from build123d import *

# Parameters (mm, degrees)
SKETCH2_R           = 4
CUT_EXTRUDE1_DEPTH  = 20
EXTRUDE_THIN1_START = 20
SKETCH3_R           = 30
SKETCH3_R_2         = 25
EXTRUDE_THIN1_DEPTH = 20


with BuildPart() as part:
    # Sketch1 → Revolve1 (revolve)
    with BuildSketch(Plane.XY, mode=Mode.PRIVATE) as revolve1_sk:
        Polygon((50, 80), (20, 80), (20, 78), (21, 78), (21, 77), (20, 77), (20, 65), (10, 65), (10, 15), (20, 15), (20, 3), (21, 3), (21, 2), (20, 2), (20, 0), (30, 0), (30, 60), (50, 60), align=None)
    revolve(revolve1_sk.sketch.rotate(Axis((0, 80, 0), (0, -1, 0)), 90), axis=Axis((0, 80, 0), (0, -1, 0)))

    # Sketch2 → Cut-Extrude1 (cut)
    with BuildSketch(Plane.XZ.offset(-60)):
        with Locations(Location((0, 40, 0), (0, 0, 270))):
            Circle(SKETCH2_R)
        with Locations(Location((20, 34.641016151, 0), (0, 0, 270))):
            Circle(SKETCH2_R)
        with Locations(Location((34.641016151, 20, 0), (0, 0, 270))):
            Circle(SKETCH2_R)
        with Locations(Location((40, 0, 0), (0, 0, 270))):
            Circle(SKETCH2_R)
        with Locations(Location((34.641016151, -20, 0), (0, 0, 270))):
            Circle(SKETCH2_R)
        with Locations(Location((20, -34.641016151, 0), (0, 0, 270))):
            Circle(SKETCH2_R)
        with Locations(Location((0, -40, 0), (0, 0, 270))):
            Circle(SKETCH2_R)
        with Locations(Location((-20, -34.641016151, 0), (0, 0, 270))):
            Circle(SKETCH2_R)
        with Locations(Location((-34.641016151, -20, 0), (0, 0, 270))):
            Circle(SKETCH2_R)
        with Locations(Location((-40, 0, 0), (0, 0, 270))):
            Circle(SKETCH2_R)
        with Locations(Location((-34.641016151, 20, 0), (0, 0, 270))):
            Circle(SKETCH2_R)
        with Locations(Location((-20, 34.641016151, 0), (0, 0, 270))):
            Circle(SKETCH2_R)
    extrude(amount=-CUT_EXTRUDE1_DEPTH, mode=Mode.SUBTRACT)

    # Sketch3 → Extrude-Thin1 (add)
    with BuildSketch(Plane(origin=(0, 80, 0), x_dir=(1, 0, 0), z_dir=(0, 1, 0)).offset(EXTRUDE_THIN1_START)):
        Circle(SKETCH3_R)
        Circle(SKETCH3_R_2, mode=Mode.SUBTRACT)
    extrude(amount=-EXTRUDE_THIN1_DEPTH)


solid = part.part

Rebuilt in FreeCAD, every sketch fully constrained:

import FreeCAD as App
import Part
import Sketcher
from FreeCAD import Vector

doc = App.newDocument("Part")
params = doc.addObject("Spreadsheet::Sheet", "Params")
for row, (alias, value) in enumerate([
    ("sketch1_width", "30 mm"),
    ("sketch1_width2", "1 mm"),
    ("sketch1_width3", "10 mm"),
    ("sketch1_height", "2 mm"),
    ("sketch1_height2", "12 mm"),
    ("revolution_angle", "360 deg"),
    ("sketch2_diameter", "8 mm"),
    ("pocket1_length", "20 mm"),
    ("sketch3_diameter", "60 mm"),
    ("sketch3_diameter2", "50 mm"),
    ("pad1_length", "20 mm"),
], start=1):
    params.set(f"A{row}", alias)
    params.set(f"B{row}", "=" + value)
    params.setAlias(f"B{row}", alias)

body = doc.addObject("PartDesign::Body", "Body")

# Sketch on XY plane
sketch1 = body.newObject("Sketcher::SketchObject", "Sketch")
sketch1.AttachmentSupport = (doc.getObject("XY_Plane"), [""])
sketch1.MapMode = "FlatFace"
sketch1.addGeometry([
    Part.LineSegment(Vector(50, 80, 0), Vector(20, 80, 0)),  # 0
    Part.LineSegment(Vector(20, 80, 0), Vector(20, 78, 0)),  # 1
    Part.LineSegment(Vector(20, 78, 0), Vector(21, 78, 0)),  # 2
    Part.LineSegment(Vector(21, 78, 0), Vector(21, 77, 0)),  # 3
    Part.LineSegment(Vector(21, 77, 0), Vector(20, 77, 0)),  # 4
    Part.LineSegment(Vector(20, 77, 0), Vector(20, 65, 0)),  # 5
    Part.LineSegment(Vector(20, 65, 0), Vector(10, 65, 0)),  # 6
    Part.LineSegment(Vector(10, 65, 0), Vector(10, 15, 0)),  # 7
    Part.LineSegment(Vector(10, 15, 0), Vector(20, 15, 0)),  # 8
    Part.LineSegment(Vector(20, 15, 0), Vector(20, 3, 0)),  # 9
    Part.LineSegment(Vector(20, 3, 0), Vector(21, 3, 0)),  # 10
    Part.LineSegment(Vector(21, 3, 0), Vector(21, 2, 0)),  # 11
    Part.LineSegment(Vector(21, 2, 0), Vector(20, 2, 0)),  # 12
    Part.LineSegment(Vector(20, 2, 0), Vector(20, 0, 0)),  # 13
    Part.LineSegment(Vector(20, 0, 0), Vector(30, 0, 0)),  # 14
    Part.LineSegment(Vector(30, 0, 0), Vector(30, 60, 0)),  # 15
    Part.LineSegment(Vector(30, 60, 0), Vector(50, 60, 0)),  # 16
    Part.LineSegment(Vector(50, 60, 0), Vector(50, 80, 0)),  # 17
], False)
sketch1.addConstraint([
    Sketcher.Constraint("Coincident", 0, 2, 1, 1),
    Sketcher.Constraint("Coincident", 1, 2, 2, 1),
    Sketcher.Constraint("Coincident", 2, 2, 3, 1),
    Sketcher.Constraint("Coincident", 3, 2, 4, 1),
    Sketcher.Constraint("Coincident", 4, 2, 5, 1),
    Sketcher.Constraint("Coincident", 5, 2, 6, 1),
    Sketcher.Constraint("Coincident", 6, 2, 7, 1),
    Sketcher.Constraint("Coincident", 7, 2, 8, 1),
    Sketcher.Constraint("Coincident", 8, 2, 9, 1),
    Sketcher.Constraint("Coincident", 9, 2, 10, 1),
    Sketcher.Constraint("Coincident", 10, 2, 11, 1),
    Sketcher.Constraint("Coincident", 11, 2, 12, 1),
    Sketcher.Constraint("Coincident", 12, 2, 13, 1),
    Sketcher.Constraint("Coincident", 13, 2, 14, 1),
    Sketcher.Constraint("Coincident", 14, 2, 15, 1),
    Sketcher.Constraint("Coincident", 15, 2, 16, 1),
    Sketcher.Constraint("Coincident", 16, 2, 17, 1),
    Sketcher.Constraint("Coincident", 17, 2, 0, 1),
    Sketcher.Constraint("Horizontal", 0),
    Sketcher.Constraint("Vertical", 1),
    Sketcher.Constraint("Horizontal", 2),
    Sketcher.Constraint("Vertical", 3),
    Sketcher.Constraint("Horizontal", 4),
    Sketcher.Constraint("Vertical", 5),
    Sketcher.Constraint("Horizontal", 6),
    Sketcher.Constraint("Vertical", 7),
    Sketcher.Constraint("Horizontal", 8),
    Sketcher.Constraint("Vertical", 9),
    Sketcher.Constraint("Horizontal", 10),
    Sketcher.Constraint("Vertical", 11),
    Sketcher.Constraint("Horizontal", 12),
    Sketcher.Constraint("Vertical", 13),
    Sketcher.Constraint("Horizontal", 14),
    Sketcher.Constraint("Vertical", 15),
    Sketcher.Constraint("Horizontal", 16),
    Sketcher.Constraint("Vertical", 17),
    Sketcher.Constraint("PointOnObject", 13, 2, -1),
    Sketcher.Constraint("Vertical", 1, 2, 4, 2),
    Sketcher.Constraint("Vertical", 5, 2, 8, 2),
    Sketcher.Constraint("Vertical", 3, 2, 10, 2),
    Sketcher.Constraint("Vertical", 9, 2, 12, 2),
    Sketcher.Constraint("Equal", 8, 14),
    Sketcher.Constraint("Equal", 12, 3),
    Sketcher.Constraint("Equal", 5, 9),
    Sketcher.Constraint("Equal", 3, 11),
    Sketcher.Constraint("Equal", 1, 13),
    Sketcher.Constraint("Equal", 16, 17),
    Sketcher.Constraint("DistanceX", 0, 2, 0, 1, 30.0),
    Sketcher.Constraint("DistanceX", 2, 1, 2, 2, 1.0),
    Sketcher.Constraint("DistanceX", 6, 2, 6, 1, 10.0),
    Sketcher.Constraint("DistanceY", 1, 2, 1, 1, 2.0),
    Sketcher.Constraint("DistanceY", 5, 2, 5, 1, 12.0),
    Sketcher.Constraint("DistanceY", 7, 2, 7, 1, 50.0),
    Sketcher.Constraint("DistanceX", -1, 1, 0, 2, 20.0),
])
sketch1.setExpression("Constraints[47]", "Params.sketch1_width")
sketch1.setExpression("Constraints[48]", "Params.sketch1_width2")
sketch1.setExpression("Constraints[49]", "Params.sketch1_width3")
sketch1.setExpression("Constraints[50]", "Params.sketch1_height")
sketch1.setExpression("Constraints[51]", "Params.sketch1_height2")
revolution = body.newObject("PartDesign::Revolution", "Revolution")
revolution.Profile = sketch1
revolution.ReferenceAxis = (sketch1, ["V_Axis"])
revolution.setExpression("Angle", "Params.revolution_angle")

# Sketch on XZ plane
sketch2 = body.newObject("Sketcher::SketchObject", "Sketch001")
sketch2.AttachmentSupport = (doc.getObject("XZ_Plane"), [""])
sketch2.MapMode = "FlatFace"
sketch2.AttachmentOffset = App.Placement(Vector(0, 0, -60), App.Rotation())
sketch2.addGeometry([
    Part.Circle(Vector(0, 40, 0), Vector(0, 0, 1), 4),  # 0
    Part.Circle(Vector(20, 34.641016, 0), Vector(0, 0, 1), 4),  # 1
    Part.Circle(Vector(34.641016, 20, 0), Vector(0, 0, 1), 4),  # 2
    Part.Circle(Vector(40, 0, 0), Vector(0, 0, 1), 4),  # 3
    Part.Circle(Vector(34.641016, -20, 0), Vector(0, 0, 1), 4),  # 4
    Part.Circle(Vector(20, -34.641016, 0), Vector(0, 0, 1), 4),  # 5
    Part.Circle(Vector(0, -40, 0), Vector(0, 0, 1), 4),  # 6
    Part.Circle(Vector(-20, -34.641016, 0), Vector(0, 0, 1), 4),  # 7
    Part.Circle(Vector(-34.641016, -20, 0), Vector(0, 0, 1), 4),  # 8
    Part.Circle(Vector(-40, 0, 0), Vector(0, 0, 1), 4),  # 9
    Part.Circle(Vector(-34.641016, 20, 0), Vector(0, 0, 1), 4),  # 10
    Part.Circle(Vector(-20, 34.641016, 0), Vector(0, 0, 1), 4),  # 11
], False)
sketch2.addConstraint([
    Sketcher.Constraint("Equal", 0, 1),
    Sketcher.Constraint("Equal", 1, 2),
    Sketcher.Constraint("Equal", 2, 3),
    Sketcher.Constraint("Equal", 3, 4),
    Sketcher.Constraint("Equal", 4, 5),
    Sketcher.Constraint("Equal", 5, 6),
    Sketcher.Constraint("Equal", 6, 7),
    Sketcher.Constraint("Equal", 7, 8),
    Sketcher.Constraint("Equal", 8, 9),
    Sketcher.Constraint("Equal", 9, 10),
    Sketcher.Constraint("Equal", 10, 11),
    Sketcher.Constraint("Symmetric", 0, 3, 6, 3, -1, 1),
    Sketcher.Constraint("Symmetric", 1, 3, 7, 3, -1, 1),
    Sketcher.Constraint("Symmetric", 2, 3, 8, 3, -1, 1),
    Sketcher.Constraint("Symmetric", 3, 3, 9, 3, -1, 1),
    Sketcher.Constraint("Symmetric", 4, 3, 10, 3, -1, 1),
    Sketcher.Constraint("Symmetric", 5, 3, 11, 3, -1, 1),
    Sketcher.Constraint("Symmetric", 5, 3, 7, 3, -2),
    Sketcher.Constraint("Symmetric", 4, 3, 8, 3, -2),
    Sketcher.Constraint("PointOnObject", 0, 3, -2),
    Sketcher.Constraint("PointOnObject", 3, 3, -1),
    Sketcher.Constraint("Diameter", 0, 8.0),
    Sketcher.Constraint("DistanceY", -1, 1, 0, 3, 40.0),
    Sketcher.Constraint("DistanceX", -1, 1, 1, 3, 20.0),
    Sketcher.Constraint("DistanceY", -1, 1, 2, 3, 20.0),
    Sketcher.Constraint("DistanceX", -1, 1, 3, 3, 40.0),
    Sketcher.Constraint("DistanceY", -1, 1, 1, 3, 34.641016),
    Sketcher.Constraint("DistanceX", -1, 1, 2, 3, 34.641016),
])
sketch2.setExpression("Constraints[21]", "Params.sketch2_diameter")
pocket1 = body.newObject("PartDesign::Pocket", "Pocket")
pocket1.Profile = sketch2
pocket1.setExpression("Length", "Params.pocket1_length")

# Sketch on XZ plane
sketch3 = body.newObject("Sketcher::SketchObject", "Sketch002")
sketch3.AttachmentSupport = (doc.getObject("XZ_Plane"), [""])
sketch3.MapMode = "FlatFace"
sketch3.AttachmentOffset = App.Placement(Vector(0, 0, -100), App.Rotation())
sketch3.addGeometry([
    Part.Circle(Vector(0, 0, 0), Vector(0, 0, 1), 30),
    Part.Circle(Vector(0, 0, 0), Vector(0, 0, 1), 25),
], False)
sketch3.addConstraint([
    Sketcher.Constraint("Coincident", 0, 3, -1, 1),
    Sketcher.Constraint("Coincident", 1, 3, -1, 1),
    Sketcher.Constraint("Diameter", 0, 60.0),
    Sketcher.Constraint("Diameter", 1, 50.0),
])
sketch3.setExpression("Constraints[2]", "Params.sketch3_diameter")
sketch3.setExpression("Constraints[3]", "Params.sketch3_diameter2")
pad1 = body.newObject("PartDesign::Pad", "Pad")
pad1.Profile = sketch3
pad1.setExpression("Length", "Params.pad1_length")

doc.recompute()
